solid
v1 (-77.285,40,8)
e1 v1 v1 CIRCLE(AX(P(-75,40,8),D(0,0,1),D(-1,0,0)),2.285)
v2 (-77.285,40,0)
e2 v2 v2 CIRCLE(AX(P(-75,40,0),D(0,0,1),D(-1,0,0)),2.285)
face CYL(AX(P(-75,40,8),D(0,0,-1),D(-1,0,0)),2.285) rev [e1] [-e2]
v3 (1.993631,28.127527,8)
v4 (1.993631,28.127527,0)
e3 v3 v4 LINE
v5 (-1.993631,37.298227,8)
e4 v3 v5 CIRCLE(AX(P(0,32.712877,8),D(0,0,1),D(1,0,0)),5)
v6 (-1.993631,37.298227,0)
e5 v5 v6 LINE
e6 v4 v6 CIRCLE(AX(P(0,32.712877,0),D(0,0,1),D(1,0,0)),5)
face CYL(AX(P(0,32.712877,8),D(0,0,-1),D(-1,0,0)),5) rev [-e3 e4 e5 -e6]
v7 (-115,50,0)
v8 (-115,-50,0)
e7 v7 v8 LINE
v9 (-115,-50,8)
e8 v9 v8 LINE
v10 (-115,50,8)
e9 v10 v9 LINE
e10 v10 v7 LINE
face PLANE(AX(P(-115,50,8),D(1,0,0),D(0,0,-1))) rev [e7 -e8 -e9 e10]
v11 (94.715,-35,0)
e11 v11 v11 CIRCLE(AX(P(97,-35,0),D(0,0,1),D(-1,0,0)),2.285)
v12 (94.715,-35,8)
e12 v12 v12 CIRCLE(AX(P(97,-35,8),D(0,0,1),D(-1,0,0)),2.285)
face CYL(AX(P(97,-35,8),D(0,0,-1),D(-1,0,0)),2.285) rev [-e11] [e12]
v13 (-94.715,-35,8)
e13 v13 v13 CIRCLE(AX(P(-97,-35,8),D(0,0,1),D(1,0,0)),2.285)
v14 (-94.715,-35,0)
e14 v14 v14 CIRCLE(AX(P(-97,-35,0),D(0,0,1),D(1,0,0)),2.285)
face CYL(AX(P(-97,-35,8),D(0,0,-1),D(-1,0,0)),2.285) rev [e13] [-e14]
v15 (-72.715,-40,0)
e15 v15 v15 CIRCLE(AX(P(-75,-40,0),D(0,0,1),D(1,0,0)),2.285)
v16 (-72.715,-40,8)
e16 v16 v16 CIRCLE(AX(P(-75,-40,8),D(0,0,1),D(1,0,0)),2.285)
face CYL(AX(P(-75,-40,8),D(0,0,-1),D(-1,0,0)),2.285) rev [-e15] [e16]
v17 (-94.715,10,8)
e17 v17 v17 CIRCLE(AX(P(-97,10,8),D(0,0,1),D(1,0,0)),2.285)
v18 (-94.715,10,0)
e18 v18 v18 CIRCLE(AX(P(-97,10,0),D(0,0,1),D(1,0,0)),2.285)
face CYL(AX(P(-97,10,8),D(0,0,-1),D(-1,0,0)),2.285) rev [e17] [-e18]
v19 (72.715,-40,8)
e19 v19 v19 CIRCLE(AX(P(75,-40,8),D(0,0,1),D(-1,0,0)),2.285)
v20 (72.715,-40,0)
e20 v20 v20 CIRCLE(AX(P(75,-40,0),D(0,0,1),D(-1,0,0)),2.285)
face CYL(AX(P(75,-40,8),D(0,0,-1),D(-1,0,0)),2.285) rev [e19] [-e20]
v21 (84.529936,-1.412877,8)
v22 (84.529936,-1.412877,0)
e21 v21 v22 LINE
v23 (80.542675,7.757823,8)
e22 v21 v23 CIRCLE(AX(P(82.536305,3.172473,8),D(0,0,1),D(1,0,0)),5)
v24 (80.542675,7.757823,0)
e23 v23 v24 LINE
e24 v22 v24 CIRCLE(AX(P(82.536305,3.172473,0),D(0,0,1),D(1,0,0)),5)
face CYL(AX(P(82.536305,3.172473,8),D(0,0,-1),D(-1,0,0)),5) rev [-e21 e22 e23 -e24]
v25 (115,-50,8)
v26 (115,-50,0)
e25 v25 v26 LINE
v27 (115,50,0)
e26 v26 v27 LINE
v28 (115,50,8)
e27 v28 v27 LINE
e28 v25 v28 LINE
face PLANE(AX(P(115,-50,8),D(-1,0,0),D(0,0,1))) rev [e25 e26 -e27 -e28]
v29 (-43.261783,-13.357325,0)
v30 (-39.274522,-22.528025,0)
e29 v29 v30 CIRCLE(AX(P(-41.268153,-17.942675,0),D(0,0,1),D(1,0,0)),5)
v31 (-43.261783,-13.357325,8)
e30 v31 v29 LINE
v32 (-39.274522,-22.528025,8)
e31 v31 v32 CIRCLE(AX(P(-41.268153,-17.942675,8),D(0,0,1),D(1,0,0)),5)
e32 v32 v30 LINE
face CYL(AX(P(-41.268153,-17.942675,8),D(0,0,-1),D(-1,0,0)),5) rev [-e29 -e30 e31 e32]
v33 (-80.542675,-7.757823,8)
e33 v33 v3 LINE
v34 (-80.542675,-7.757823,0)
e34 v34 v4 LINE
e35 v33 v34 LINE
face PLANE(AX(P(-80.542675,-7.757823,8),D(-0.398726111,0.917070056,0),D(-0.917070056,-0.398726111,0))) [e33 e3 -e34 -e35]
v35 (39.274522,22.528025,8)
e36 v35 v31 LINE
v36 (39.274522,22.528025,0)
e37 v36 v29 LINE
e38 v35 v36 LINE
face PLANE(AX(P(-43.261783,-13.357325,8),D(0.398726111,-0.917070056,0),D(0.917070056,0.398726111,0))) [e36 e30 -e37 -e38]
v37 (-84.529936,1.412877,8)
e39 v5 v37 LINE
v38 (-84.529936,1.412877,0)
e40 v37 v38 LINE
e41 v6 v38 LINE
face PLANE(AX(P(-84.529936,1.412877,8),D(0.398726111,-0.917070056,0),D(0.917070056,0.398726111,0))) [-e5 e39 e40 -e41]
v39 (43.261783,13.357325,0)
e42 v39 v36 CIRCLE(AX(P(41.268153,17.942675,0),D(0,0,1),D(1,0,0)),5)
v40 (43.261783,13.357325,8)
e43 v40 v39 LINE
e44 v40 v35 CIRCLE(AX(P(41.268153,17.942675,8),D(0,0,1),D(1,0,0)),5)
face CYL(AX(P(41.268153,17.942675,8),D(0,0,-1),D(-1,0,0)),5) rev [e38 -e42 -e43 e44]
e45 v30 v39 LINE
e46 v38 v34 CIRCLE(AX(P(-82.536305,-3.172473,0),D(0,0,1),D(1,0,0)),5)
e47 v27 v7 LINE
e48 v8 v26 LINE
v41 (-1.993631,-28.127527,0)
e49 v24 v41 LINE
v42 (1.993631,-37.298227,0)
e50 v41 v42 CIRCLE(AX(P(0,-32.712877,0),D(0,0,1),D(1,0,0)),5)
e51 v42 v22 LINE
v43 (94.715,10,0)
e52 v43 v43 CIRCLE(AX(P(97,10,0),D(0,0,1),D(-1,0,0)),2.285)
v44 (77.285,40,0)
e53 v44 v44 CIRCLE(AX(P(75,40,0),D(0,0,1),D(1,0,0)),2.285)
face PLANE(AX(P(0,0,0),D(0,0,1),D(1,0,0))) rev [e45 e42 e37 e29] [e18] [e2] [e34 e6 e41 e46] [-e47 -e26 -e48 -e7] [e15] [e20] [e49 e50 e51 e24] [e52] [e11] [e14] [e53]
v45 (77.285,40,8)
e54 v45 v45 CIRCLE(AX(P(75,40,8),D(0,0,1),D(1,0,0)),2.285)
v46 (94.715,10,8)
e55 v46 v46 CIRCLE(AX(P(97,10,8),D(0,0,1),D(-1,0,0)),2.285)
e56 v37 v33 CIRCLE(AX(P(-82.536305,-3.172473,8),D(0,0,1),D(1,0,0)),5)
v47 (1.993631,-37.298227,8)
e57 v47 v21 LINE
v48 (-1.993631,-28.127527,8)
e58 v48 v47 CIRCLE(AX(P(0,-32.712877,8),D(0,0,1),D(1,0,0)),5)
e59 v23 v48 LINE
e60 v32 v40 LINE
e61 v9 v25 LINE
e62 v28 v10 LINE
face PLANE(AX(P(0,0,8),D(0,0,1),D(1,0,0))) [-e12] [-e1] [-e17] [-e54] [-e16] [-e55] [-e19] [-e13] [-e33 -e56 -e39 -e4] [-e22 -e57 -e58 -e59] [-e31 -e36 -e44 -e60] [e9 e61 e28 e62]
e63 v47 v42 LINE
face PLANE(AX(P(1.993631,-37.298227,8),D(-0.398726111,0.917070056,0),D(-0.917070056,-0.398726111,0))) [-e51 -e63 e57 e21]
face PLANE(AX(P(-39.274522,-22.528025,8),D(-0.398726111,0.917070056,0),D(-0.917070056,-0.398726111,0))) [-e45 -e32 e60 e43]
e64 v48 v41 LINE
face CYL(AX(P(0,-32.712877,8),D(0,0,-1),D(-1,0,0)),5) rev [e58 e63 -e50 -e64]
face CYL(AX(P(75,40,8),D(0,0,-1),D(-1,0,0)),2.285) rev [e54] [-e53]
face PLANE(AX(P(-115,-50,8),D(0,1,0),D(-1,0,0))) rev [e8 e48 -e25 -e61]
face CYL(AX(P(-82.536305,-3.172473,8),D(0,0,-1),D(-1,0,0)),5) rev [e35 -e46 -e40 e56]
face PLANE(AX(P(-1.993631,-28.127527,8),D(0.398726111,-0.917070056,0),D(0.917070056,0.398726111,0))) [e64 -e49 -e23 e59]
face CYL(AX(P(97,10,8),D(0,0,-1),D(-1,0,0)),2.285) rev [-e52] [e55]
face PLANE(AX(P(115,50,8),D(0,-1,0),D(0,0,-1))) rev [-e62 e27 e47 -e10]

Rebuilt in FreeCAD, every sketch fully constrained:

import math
import FreeCAD as App
import Part
import Sketcher

V = App.Vector

doc = App.newDocument("Part")
params = doc.addObject("Spreadsheet::Sheet", "Params")
for row, (alias, value) in enumerate([
    ("sketch1_radius", "5 mm"),
    ("sketch1_diameter", "4.57 mm"),
    ("sketch1_width", "230 mm"),
    ("sketch1_height", "100 mm"),
    ("sketch1_length", "90 mm"),
    ("pad1_length", "8 mm"),
], start=1):
    params.set(f"A{row}", alias)
    params.set(f"B{row}", "=" + value)
    params.setAlias(f"B{row}", alias)

body = doc.addObject("PartDesign::Body", "Body")

sketch1 = body.newObject("Sketcher::SketchObject", "Sketch")
sketch1.AttachmentSupport = (doc.getObject("XY_Plane"), [""])
sketch1.MapMode = "FlatFace"
sketch1.addGeometry([
    Part.LineSegment(V(-115, 50, 0), V(-115, -50, 0)),
    Part.LineSegment(V(-115, -50, 0), V(115, -50, 0)),
    Part.LineSegment(V(115, -50, 0), V(115, 50, 0)),
    Part.LineSegment(V(115, 50, 0), V(-115, 50, 0)),
    Part.Circle(V(-75, -40, 0), V(0, 0, 1), 2.285),
    Part.Circle(V(-97, -35, 0), V(0, 0, 1), 2.285),
    Part.Circle(V(75, -40, 0), V(0, 0, 1), 2.285),
    Part.Circle(V(97, -35, 0), V(0, 0, 1), 2.285),
    Part.ArcOfCircle(Part.Circle(V(0, -32.712877, 0), V(0, 0, 1), 5), math.radians(113.498566), math.radians(293.498566)),
    Part.LineSegment(V(-1.993631, -28.127527, 0), V(80.542675, 7.757823, 0)),
    Part.ArcOfCircle(Part.Circle(V(82.536305, 3.172473, 0), V(0, 0, 1), 5), math.radians(-66.501434), math.radians(113.498566)),
    Part.LineSegment(V(84.529936, -1.412877, 0), V(1.993631, -37.298227, 0)),
    Part.Circle(V(-97, 10, 0), V(0, 0, 1), 2.285),
    Part.ArcOfCircle(Part.Circle(V(-82.536305, -3.172473, 0), V(0, 0, 1), 5), math.radians(113.498566), math.radians(293.498566)),
    Part.LineSegment(V(-84.529936, 1.412877, 0), V(-1.993631, 37.298227, 0)),
    Part.ArcOfCircle(Part.Circle(V(0, 32.712877, 0), V(0, 0, 1), 5), math.radians(-66.501434), math.radians(113.498566)),
    Part.LineSegment(V(1.993631, 28.127527, 0), V(-80.542675, -7.757823, 0)),
    Part.Circle(V(-75, 40, 0), V(0, 0, 1), 2.285),
    Part.ArcOfCircle(Part.Circle(V(-41.268153, -17.942675, 0), V(0, 0, 1), 5), math.radians(113.498566), math.radians(293.498566)),
    Part.LineSegment(V(-43.261783, -13.357325, 0), V(39.274522, 22.528025, 0)),
    Part.ArcOfCircle(Part.Circle(V(41.268153, 17.942675, 0), V(0, 0, 1), 5), math.radians(-66.501434), math.radians(113.498566)),
    Part.LineSegment(V(43.261783, 13.357325, 0), V(-39.274522, -22.528025, 0)),
    Part.Circle(V(97, 10, 0), V(0, 0, 1), 2.285),
    Part.Circle(V(75, 40, 0), V(0, 0, 1), 2.285),
], False)
sketch1.addConstraint([
    Sketcher.Constraint("Coincident", 0, 2, 1, 1),
    Sketcher.Constraint("Coincident", 1, 2, 2, 1),
    Sketcher.Constraint("Coincident", 2, 2, 3, 1),
    Sketcher.Constraint("Coincident", 3, 2, 0, 1),
    Sketcher.Constraint("Tangent", 8, 1, 9, 1),
    Sketcher.Constraint("Tangent", 9, 2, 10, 2),
    Sketcher.Constraint("Tangent", 10, 1, 11, 1),
    Sketcher.Constraint("Tangent", 11, 2, 8, 2),
    Sketcher.Constraint("Tangent", 13, 1, 14, 1),
    Sketcher.Constraint("Tangent", 14, 2, 15, 2),
    Sketcher.Constraint("Tangent", 15, 1, 16, 1),
    Sketcher.Constraint("Tangent", 16, 2, 13, 2),
    Sketcher.Constraint("Tangent", 18, 1, 19, 1),
    Sketcher.Constraint("Tangent", 19, 2, 20, 2),
    Sketcher.Constraint("Tangent", 20, 1, 21, 1),
    Sketcher.Constraint("Tangent", 21, 2, 18, 2),
    Sketcher.Constraint("Vertical", 0),
    Sketcher.Constraint("Horizontal", 1),
    Sketcher.Constraint("Vertical", 2),
    Sketcher.Constraint("Horizontal", 3),
    Sketcher.Constraint("Equal", 4, 5),
    Sketcher.Constraint("Equal", 5, 6),
    Sketcher.Constraint("Equal", 6, 7),
    Sketcher.Constraint("Equal", 8, 10),
    Sketcher.Constraint("Equal", 7, 12),
    Sketcher.Constraint("Equal", 10, 13),
    Sketcher.Constraint("Equal", 13, 15),
    Sketcher.Constraint("Equal", 12, 17),
    Sketcher.Constraint("Equal", 15, 18),
    Sketcher.Constraint("Equal", 18, 20),
    Sketcher.Constraint("Equal", 17, 22),
    Sketcher.Constraint("Equal", 22, 23),
    Sketcher.Constraint("Symmetric", 10, 3, 13, 3, -1, 1),
    Sketcher.Constraint("Symmetric", 8, 3, 15, 3, -1, 1),
    Sketcher.Constraint("Symmetric", 6, 3, 17, 3, -1, 1),
    Sketcher.Constraint("Symmetric", 18, 3, 20, 3, -1, 1),
    Sketcher.Constraint("Symmetric", 4, 3, 23, 3, -1, 1),
    Sketcher.Constraint("Symmetric", 0, 2, 2, 2, -1, 1),
    Sketcher.Constraint("Symmetric", 4, 3, 6, 3, -2),
    Sketcher.Constraint("Symmetric", 5, 3, 7, 3, -2),
    Sketcher.Constraint("Symmetric", 12, 3, 22, 3, -2),
    Sketcher.Constraint("PointOnObject", 8, 3, -2),
    Sketcher.Constraint("Parallel", 16, 19),
    Sketcher.Constraint("Vertical", 5, 3, 12, 3),
    Sketcher.Constraint("Equal", 16, 19),
    Sketcher.Constraint("Radius", 8, 5.0),
    Sketcher.Constraint("Diameter", 4, 4.57),
    Sketcher.Constraint("DistanceX", 1, 1, 1, 2, 230.0),
    Sketcher.Constraint("DistanceY", 0, 2, 0, 1, 100.0),
    Sketcher.Constraint("Distance", 9, 90.0),
    Sketcher.Constraint("DistanceX", 4, 3, -1, 1, 75.0),
    Sketcher.Constraint("DistanceY", 4, 3, -1, 1, 40.0),
    Sketcher.Constraint("DistanceX", 5, 3, -1, 1, 97.0),
    Sketcher.Constraint("DistanceY", 5, 3, -1, 1, 35.0),
    Sketcher.Constraint("DistanceY", -1, 1, 12, 3, 10.0),
    Sketcher.Constraint("DistanceY", 8, 1, 20, 3, 46.070202),
    Sketcher.Constraint("DistanceY", 10, 1, 9, 2, 9.170701),
])
sketch1.setExpression("Constraints[45]", "Params.sketch1_radius")
sketch1.setExpression("Constraints[46]", "Params.sketch1_diameter")
sketch1.setExpression("Constraints[47]", "Params.sketch1_width")
sketch1.setExpression("Constraints[48]", "Params.sketch1_height")
sketch1.setExpression("Constraints[49]", "Params.sketch1_length")
pad1 = body.newObject("PartDesign::Pad", "Pad")
pad1.Profile = sketch1
pad1.setExpression("Length", "Params.pad1_length")

doc.recompute()
